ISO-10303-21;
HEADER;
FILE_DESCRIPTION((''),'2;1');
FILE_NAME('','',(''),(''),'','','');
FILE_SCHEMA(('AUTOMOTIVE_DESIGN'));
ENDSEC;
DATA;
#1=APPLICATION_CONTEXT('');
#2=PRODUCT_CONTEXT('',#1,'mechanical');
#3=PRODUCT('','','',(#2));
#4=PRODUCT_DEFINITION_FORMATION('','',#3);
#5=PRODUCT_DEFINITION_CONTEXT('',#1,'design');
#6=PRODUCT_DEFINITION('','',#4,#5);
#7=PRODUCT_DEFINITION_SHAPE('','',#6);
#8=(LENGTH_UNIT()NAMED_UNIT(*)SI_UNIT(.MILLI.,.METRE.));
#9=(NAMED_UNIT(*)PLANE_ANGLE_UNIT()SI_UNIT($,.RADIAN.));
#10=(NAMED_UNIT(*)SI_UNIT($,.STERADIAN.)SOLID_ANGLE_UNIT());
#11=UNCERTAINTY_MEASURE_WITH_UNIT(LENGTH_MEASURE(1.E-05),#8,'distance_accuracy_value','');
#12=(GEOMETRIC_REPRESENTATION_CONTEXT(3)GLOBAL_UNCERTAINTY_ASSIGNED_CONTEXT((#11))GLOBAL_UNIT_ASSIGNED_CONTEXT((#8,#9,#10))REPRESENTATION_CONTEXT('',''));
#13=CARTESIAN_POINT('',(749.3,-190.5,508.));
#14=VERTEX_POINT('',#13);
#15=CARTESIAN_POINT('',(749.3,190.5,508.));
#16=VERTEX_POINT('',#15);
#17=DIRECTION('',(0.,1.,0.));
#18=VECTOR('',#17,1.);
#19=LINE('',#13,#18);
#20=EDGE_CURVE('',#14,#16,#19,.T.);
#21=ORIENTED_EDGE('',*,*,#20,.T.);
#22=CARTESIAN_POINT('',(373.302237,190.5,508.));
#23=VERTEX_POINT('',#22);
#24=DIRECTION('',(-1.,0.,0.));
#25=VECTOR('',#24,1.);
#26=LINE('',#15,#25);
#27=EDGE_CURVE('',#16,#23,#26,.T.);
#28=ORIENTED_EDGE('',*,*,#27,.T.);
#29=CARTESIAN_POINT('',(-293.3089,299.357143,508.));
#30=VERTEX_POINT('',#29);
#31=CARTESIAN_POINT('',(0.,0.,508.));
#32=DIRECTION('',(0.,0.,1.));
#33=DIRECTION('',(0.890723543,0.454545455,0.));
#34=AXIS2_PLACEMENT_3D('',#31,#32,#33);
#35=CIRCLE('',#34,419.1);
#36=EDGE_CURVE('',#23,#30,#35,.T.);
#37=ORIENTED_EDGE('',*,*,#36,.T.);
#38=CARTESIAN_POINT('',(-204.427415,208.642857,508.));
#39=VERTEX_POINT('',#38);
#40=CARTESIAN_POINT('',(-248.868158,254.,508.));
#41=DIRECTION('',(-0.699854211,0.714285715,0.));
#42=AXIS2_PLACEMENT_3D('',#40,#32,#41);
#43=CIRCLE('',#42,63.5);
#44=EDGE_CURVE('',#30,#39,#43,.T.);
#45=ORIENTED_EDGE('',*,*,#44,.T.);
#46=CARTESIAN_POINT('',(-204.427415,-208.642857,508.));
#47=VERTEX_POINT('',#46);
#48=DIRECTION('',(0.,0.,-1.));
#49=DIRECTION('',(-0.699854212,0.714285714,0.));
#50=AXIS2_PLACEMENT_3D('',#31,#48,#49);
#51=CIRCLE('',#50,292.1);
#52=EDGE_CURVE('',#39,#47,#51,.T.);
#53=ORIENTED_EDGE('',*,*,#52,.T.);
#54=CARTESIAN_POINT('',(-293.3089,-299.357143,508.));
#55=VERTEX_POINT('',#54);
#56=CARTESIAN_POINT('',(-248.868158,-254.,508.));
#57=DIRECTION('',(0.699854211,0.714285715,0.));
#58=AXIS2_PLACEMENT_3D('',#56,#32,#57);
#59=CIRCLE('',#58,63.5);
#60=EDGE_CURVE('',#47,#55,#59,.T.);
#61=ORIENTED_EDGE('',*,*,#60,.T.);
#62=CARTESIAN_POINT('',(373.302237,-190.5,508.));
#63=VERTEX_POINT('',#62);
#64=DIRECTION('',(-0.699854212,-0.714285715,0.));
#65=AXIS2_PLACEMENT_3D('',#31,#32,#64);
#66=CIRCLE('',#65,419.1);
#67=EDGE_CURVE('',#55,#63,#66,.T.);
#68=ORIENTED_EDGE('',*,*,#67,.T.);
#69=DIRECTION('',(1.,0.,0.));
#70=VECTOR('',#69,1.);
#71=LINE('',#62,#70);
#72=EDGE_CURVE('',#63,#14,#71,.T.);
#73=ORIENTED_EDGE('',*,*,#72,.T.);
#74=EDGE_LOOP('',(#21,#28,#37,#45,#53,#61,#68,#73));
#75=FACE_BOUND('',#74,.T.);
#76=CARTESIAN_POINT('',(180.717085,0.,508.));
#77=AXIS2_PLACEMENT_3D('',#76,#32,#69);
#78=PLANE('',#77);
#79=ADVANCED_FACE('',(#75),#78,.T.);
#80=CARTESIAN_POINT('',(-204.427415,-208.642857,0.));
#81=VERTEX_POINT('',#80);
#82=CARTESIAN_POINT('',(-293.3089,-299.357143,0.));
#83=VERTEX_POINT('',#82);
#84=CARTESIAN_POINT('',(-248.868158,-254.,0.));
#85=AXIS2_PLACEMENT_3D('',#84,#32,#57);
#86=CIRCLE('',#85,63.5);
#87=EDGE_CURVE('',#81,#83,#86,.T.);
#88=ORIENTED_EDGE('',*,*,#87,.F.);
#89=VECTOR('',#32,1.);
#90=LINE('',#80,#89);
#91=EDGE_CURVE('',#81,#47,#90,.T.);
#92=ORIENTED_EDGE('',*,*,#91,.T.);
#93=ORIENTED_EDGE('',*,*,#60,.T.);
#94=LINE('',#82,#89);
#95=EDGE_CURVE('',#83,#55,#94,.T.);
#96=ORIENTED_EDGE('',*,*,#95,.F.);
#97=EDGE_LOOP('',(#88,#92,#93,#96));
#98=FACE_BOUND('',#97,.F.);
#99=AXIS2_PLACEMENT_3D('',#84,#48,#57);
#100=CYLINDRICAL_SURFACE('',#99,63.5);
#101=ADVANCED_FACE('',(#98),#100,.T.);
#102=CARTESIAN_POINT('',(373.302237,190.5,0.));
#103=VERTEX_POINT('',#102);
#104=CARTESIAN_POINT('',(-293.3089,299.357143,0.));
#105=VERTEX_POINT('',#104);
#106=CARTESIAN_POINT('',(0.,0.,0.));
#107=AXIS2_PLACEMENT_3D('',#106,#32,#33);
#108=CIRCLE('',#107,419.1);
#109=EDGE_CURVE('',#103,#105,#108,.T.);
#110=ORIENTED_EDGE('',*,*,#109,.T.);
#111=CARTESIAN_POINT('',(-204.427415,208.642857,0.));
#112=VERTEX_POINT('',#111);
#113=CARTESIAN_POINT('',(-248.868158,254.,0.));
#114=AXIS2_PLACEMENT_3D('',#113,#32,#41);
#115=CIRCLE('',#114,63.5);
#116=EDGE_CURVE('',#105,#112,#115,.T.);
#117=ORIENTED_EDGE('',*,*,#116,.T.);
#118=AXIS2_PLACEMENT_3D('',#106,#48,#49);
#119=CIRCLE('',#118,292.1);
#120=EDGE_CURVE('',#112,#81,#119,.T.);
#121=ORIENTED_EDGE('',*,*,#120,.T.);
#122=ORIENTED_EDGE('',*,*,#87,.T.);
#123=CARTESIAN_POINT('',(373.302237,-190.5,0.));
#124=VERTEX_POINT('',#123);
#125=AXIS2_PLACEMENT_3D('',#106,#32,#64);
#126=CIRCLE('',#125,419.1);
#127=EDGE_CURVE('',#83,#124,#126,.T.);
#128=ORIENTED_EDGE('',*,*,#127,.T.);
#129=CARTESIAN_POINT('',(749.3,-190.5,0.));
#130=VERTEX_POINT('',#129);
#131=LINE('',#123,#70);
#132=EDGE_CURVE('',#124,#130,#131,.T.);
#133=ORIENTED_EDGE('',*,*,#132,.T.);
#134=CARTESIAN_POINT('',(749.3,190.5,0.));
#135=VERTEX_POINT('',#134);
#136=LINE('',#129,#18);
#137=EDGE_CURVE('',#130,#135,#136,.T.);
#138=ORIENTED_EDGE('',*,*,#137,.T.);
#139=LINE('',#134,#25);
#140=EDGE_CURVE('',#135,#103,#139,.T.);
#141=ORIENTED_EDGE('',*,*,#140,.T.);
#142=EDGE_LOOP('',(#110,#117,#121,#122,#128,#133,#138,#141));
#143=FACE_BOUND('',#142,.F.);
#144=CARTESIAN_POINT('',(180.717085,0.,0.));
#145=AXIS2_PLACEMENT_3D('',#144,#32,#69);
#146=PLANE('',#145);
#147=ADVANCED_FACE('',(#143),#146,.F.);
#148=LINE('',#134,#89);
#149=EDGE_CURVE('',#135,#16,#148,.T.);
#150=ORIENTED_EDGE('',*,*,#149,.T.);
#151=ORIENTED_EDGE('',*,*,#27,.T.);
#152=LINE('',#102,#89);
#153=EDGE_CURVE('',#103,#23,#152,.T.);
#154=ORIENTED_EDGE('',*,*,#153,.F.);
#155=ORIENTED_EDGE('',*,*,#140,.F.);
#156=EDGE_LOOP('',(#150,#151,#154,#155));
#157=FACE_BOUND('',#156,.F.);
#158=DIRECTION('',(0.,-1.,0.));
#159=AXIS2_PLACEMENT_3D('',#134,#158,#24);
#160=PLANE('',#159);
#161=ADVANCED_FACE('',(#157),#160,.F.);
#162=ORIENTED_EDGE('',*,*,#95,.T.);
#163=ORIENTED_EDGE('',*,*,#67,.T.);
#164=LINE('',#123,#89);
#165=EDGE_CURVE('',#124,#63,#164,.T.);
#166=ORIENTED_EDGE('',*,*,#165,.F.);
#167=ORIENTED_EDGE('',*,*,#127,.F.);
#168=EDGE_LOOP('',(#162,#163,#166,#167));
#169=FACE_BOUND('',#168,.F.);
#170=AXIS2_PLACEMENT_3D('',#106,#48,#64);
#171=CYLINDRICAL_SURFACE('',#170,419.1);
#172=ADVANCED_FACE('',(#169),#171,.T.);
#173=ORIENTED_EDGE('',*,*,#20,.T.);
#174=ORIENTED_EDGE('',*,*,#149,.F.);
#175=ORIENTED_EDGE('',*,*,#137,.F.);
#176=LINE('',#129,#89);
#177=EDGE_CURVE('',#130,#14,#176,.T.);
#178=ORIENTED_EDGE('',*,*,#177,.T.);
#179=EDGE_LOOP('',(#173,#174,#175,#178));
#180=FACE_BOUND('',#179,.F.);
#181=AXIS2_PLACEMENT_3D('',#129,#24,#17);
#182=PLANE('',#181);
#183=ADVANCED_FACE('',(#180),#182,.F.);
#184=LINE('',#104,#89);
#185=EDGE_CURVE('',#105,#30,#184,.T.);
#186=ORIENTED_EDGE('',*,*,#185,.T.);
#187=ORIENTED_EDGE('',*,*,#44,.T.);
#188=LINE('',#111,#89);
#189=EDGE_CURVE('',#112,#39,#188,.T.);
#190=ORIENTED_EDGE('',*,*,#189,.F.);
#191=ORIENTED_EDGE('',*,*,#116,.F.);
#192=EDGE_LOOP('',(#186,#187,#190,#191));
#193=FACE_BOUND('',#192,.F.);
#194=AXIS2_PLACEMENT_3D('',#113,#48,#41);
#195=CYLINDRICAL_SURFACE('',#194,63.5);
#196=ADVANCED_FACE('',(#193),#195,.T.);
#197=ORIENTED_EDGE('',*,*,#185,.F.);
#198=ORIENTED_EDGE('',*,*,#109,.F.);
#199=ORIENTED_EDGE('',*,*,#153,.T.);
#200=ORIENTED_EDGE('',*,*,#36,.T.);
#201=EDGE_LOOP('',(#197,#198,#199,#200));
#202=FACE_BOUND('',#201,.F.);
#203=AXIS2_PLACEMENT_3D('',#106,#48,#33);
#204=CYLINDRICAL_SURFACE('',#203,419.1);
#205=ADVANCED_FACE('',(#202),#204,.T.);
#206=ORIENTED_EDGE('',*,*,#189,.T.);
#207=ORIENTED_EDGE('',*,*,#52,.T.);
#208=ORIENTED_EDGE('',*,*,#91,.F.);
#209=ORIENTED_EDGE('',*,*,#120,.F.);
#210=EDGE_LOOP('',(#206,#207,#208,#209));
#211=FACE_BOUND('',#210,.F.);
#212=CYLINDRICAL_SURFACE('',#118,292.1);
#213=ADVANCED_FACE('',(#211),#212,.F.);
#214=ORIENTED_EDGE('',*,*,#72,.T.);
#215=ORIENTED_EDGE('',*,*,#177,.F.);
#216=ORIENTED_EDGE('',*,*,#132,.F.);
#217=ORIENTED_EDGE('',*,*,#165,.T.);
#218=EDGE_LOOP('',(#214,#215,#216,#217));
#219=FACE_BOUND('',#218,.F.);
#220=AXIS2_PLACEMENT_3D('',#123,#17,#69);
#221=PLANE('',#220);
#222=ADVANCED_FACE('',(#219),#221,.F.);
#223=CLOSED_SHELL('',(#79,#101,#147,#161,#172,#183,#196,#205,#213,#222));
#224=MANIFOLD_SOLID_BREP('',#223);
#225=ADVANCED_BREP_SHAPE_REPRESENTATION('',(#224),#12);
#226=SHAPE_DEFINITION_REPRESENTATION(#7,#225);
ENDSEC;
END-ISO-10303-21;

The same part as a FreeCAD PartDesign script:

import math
import FreeCAD as App
import Part
import Sketcher
Q = App.Units.Quantity

doc = App.newDocument("Part")
body = doc.addObject("PartDesign::Body", "Body")

sketch1 = body.newObject("Sketcher::SketchObject", "Sketch")
sketch1.AttachmentSupport = (doc.getObject("XY_Plane"), [""])
sketch1.MapMode = "FlatFace"
sketch1.addGeometry([
    Part.ArcOfCircle(Part.Circle(App.Vector(0, 0, 0), App.Vector(0, 0, 1), 292.1), math.radians(-134.415309), math.radians(134.415309)),
    Part.ArcOfCircle(Part.Circle(App.Vector(-248.868158, -254, 0), App.Vector(0, 0, 1), 63.5), math.radians(45.584691), math.radians(225.584691)),
    Part.ArcOfCircle(Part.Circle(App.Vector(0, 0, 0), App.Vector(0, 0, 1), 419.1), math.radians(-134.415309), math.radians(-27.035692)),
    Part.LineSegment(App.Vector(373.302237, -190.5, 0), App.Vector(749.3, -190.5, 0)),
    Part.LineSegment(App.Vector(749.3, -190.5, 0), App.Vector(749.3, 190.5, 0)),
    Part.LineSegment(App.Vector(749.3, 190.5, 0), App.Vector(373.302237, 190.5, 0)),
    Part.ArcOfCircle(Part.Circle(App.Vector(0, 0, 0), App.Vector(0, 0, 1), 419.1), math.radians(27.035692), math.radians(134.415309)),
    Part.ArcOfCircle(Part.Circle(App.Vector(-248.868158, 254, 0), App.Vector(0, 0, 1), 63.5), math.radians(134.415309), math.radians(314.415309)),
], False)
sketch1.addConstraint([
    Sketcher.Constraint("Tangent", 0, 1, 1, 1),
    Sketcher.Constraint("Tangent", 1, 2, 2, 1),
    Sketcher.Constraint("Coincident", 2, 2, 3, 1),
    Sketcher.Constraint("Coincident", 3, 2, 4, 1),
    Sketcher.Constraint("Coincident", 4, 2, 5, 1),
    Sketcher.Constraint("Coincident", 5, 2, 6, 1),
    Sketcher.Constraint("Tangent", 6, 2, 7, 1),
    Sketcher.Constraint("Tangent", 7, 2, 0, 2),
    Sketcher.Constraint("Horizontal", 3),
    Sketcher.Constraint("Vertical", 4),
    Sketcher.Constraint("Horizontal", 5),
    Sketcher.Constraint("Coincident", 0, 3, -1, 1),
    Sketcher.Constraint("Coincident", 2, 3, -1, 1),
    Sketcher.Constraint("Coincident", 6, 3, -1, 1),
    Sketcher.Constraint("Equal", 2, 6),
    Sketcher.Constraint("Vertical", 1, 3, 7, 3),
    Sketcher.Constraint("Vertical", 2, 2, 5, 2),
    Sketcher.Constraint("Radius", 0, Q("11.5 in")),
    Sketcher.Constraint("Radius", 1, Q("2.5 in")),
    Sketcher.Constraint("DistanceY", 4, 1, 4, 2, Q("15 in")),
    Sketcher.Constraint("DistanceY", 1, 3, -1, 1, Q("10 in")),
    Sketcher.Constraint("DistanceX", -1, 1, 3, 2, Q("29.5 in")),
])
pad1 = body.newObject("PartDesign::Pad", "Pad")
pad1.Profile = sketch1
pad1.Length = Q("20 in")

doc.recompute()
